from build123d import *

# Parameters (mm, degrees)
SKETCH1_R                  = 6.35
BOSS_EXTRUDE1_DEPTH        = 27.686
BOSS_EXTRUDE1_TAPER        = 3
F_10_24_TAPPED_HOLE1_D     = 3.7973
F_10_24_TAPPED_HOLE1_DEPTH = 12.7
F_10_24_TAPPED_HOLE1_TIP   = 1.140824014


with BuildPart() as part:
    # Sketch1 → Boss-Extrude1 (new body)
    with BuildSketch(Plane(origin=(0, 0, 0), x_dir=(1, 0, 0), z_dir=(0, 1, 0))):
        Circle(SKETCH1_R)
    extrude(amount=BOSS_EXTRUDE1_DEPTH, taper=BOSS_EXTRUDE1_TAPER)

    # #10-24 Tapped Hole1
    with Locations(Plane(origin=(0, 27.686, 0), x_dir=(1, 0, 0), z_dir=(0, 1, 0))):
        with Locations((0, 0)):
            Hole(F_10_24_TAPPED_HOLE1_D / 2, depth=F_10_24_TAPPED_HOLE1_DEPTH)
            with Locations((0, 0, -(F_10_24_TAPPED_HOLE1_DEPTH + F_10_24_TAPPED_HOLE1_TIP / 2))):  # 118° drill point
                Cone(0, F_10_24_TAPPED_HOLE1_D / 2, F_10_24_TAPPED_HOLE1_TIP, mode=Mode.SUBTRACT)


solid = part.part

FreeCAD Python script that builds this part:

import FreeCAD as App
import Part
import Sketcher
from FreeCAD import Vector
Q = App.Units.Quantity

doc = App.newDocument("Part")
params = doc.addObject("Spreadsheet::Sheet", "Params")
for row, (alias, value) in enumerate([
    ("sketch1_diameter", "0.5 in"),
    ("pad1_length", "1.09 in"),
    ("pad1_taper", "-3 deg"),
    ("hole_diameter", "0.1495 in"),
    ("hole_depth", "0.5 in"),
], start=1):
    params.set(f"A{row}", alias)
    params.set(f"B{row}", "=" + value)
    params.setAlias(f"B{row}", alias)

body = doc.addObject("PartDesign::Body", "Body")

# Sketch on XZ plane
sketch1 = doc.addObject("Sketcher::SketchObject", "Sketch")
body.addObject(sketch1)
sketch1.AttachmentSupport = (doc.XZ_Plane, [""])
sketch1.MapMode = "FlatFace"
sketch1.addGeometry(Part.Circle(Vector(0, 0, 0), Vector(0, 0, 1), 6), False)
sketch1.addConstraint(Sketcher.Constraint("Coincident", 0, 3, -1, 1))
sketch1.addConstraint(Sketcher.Constraint("Diameter", 0, Q("0.5 in")))
sketch1.setExpression("Constraints[1]", "Params.sketch1_diameter")
pad1 = doc.addObject("PartDesign::Pad", "Pad")
body.addObject(pad1)
pad1.Profile = sketch1
pad1.setExpression("Length", "Params.pad1_length")
pad1.Reversed = True
pad1.setExpression("TaperAngle", "Params.pad1_taper")

# Sketch on XZ plane
sketch2 = doc.addObject("Sketcher::SketchObject", "Sketch001")
body.addObject(sketch2)
sketch2.AttachmentSupport = (doc.XZ_Plane, [""])
sketch2.MapMode = "FlatFace"
sketch2.AttachmentOffset = App.Placement(Vector(0, 0, -1.09 * 25.4), App.Rotation())
sketch2.addGeometry(Part.Circle(Vector(0, 0, 0), Vector(0, 0, 1), 1.9), False)
sketch2.addConstraint(Sketcher.Constraint("Coincident", 0, 3, -1, 1))
sketch2.addConstraint(Sketcher.Constraint("Diameter", 0, Q("0.1495 in")))
doc.recompute()
hole = doc.addObject("PartDesign::Hole", "Hole")
body.addObject(hole)
hole.Profile = sketch2
hole.ThreadType = "None"
hole.setExpression("Diameter", "Params.hole_diameter")
hole.DepthType = "Dimension"
hole.setExpression("Depth", "Params.hole_depth")
hole.DrillPoint = "Angled"
hole.DrillPointAngle = 118
hole.Reversed = True

doc.recompute()
